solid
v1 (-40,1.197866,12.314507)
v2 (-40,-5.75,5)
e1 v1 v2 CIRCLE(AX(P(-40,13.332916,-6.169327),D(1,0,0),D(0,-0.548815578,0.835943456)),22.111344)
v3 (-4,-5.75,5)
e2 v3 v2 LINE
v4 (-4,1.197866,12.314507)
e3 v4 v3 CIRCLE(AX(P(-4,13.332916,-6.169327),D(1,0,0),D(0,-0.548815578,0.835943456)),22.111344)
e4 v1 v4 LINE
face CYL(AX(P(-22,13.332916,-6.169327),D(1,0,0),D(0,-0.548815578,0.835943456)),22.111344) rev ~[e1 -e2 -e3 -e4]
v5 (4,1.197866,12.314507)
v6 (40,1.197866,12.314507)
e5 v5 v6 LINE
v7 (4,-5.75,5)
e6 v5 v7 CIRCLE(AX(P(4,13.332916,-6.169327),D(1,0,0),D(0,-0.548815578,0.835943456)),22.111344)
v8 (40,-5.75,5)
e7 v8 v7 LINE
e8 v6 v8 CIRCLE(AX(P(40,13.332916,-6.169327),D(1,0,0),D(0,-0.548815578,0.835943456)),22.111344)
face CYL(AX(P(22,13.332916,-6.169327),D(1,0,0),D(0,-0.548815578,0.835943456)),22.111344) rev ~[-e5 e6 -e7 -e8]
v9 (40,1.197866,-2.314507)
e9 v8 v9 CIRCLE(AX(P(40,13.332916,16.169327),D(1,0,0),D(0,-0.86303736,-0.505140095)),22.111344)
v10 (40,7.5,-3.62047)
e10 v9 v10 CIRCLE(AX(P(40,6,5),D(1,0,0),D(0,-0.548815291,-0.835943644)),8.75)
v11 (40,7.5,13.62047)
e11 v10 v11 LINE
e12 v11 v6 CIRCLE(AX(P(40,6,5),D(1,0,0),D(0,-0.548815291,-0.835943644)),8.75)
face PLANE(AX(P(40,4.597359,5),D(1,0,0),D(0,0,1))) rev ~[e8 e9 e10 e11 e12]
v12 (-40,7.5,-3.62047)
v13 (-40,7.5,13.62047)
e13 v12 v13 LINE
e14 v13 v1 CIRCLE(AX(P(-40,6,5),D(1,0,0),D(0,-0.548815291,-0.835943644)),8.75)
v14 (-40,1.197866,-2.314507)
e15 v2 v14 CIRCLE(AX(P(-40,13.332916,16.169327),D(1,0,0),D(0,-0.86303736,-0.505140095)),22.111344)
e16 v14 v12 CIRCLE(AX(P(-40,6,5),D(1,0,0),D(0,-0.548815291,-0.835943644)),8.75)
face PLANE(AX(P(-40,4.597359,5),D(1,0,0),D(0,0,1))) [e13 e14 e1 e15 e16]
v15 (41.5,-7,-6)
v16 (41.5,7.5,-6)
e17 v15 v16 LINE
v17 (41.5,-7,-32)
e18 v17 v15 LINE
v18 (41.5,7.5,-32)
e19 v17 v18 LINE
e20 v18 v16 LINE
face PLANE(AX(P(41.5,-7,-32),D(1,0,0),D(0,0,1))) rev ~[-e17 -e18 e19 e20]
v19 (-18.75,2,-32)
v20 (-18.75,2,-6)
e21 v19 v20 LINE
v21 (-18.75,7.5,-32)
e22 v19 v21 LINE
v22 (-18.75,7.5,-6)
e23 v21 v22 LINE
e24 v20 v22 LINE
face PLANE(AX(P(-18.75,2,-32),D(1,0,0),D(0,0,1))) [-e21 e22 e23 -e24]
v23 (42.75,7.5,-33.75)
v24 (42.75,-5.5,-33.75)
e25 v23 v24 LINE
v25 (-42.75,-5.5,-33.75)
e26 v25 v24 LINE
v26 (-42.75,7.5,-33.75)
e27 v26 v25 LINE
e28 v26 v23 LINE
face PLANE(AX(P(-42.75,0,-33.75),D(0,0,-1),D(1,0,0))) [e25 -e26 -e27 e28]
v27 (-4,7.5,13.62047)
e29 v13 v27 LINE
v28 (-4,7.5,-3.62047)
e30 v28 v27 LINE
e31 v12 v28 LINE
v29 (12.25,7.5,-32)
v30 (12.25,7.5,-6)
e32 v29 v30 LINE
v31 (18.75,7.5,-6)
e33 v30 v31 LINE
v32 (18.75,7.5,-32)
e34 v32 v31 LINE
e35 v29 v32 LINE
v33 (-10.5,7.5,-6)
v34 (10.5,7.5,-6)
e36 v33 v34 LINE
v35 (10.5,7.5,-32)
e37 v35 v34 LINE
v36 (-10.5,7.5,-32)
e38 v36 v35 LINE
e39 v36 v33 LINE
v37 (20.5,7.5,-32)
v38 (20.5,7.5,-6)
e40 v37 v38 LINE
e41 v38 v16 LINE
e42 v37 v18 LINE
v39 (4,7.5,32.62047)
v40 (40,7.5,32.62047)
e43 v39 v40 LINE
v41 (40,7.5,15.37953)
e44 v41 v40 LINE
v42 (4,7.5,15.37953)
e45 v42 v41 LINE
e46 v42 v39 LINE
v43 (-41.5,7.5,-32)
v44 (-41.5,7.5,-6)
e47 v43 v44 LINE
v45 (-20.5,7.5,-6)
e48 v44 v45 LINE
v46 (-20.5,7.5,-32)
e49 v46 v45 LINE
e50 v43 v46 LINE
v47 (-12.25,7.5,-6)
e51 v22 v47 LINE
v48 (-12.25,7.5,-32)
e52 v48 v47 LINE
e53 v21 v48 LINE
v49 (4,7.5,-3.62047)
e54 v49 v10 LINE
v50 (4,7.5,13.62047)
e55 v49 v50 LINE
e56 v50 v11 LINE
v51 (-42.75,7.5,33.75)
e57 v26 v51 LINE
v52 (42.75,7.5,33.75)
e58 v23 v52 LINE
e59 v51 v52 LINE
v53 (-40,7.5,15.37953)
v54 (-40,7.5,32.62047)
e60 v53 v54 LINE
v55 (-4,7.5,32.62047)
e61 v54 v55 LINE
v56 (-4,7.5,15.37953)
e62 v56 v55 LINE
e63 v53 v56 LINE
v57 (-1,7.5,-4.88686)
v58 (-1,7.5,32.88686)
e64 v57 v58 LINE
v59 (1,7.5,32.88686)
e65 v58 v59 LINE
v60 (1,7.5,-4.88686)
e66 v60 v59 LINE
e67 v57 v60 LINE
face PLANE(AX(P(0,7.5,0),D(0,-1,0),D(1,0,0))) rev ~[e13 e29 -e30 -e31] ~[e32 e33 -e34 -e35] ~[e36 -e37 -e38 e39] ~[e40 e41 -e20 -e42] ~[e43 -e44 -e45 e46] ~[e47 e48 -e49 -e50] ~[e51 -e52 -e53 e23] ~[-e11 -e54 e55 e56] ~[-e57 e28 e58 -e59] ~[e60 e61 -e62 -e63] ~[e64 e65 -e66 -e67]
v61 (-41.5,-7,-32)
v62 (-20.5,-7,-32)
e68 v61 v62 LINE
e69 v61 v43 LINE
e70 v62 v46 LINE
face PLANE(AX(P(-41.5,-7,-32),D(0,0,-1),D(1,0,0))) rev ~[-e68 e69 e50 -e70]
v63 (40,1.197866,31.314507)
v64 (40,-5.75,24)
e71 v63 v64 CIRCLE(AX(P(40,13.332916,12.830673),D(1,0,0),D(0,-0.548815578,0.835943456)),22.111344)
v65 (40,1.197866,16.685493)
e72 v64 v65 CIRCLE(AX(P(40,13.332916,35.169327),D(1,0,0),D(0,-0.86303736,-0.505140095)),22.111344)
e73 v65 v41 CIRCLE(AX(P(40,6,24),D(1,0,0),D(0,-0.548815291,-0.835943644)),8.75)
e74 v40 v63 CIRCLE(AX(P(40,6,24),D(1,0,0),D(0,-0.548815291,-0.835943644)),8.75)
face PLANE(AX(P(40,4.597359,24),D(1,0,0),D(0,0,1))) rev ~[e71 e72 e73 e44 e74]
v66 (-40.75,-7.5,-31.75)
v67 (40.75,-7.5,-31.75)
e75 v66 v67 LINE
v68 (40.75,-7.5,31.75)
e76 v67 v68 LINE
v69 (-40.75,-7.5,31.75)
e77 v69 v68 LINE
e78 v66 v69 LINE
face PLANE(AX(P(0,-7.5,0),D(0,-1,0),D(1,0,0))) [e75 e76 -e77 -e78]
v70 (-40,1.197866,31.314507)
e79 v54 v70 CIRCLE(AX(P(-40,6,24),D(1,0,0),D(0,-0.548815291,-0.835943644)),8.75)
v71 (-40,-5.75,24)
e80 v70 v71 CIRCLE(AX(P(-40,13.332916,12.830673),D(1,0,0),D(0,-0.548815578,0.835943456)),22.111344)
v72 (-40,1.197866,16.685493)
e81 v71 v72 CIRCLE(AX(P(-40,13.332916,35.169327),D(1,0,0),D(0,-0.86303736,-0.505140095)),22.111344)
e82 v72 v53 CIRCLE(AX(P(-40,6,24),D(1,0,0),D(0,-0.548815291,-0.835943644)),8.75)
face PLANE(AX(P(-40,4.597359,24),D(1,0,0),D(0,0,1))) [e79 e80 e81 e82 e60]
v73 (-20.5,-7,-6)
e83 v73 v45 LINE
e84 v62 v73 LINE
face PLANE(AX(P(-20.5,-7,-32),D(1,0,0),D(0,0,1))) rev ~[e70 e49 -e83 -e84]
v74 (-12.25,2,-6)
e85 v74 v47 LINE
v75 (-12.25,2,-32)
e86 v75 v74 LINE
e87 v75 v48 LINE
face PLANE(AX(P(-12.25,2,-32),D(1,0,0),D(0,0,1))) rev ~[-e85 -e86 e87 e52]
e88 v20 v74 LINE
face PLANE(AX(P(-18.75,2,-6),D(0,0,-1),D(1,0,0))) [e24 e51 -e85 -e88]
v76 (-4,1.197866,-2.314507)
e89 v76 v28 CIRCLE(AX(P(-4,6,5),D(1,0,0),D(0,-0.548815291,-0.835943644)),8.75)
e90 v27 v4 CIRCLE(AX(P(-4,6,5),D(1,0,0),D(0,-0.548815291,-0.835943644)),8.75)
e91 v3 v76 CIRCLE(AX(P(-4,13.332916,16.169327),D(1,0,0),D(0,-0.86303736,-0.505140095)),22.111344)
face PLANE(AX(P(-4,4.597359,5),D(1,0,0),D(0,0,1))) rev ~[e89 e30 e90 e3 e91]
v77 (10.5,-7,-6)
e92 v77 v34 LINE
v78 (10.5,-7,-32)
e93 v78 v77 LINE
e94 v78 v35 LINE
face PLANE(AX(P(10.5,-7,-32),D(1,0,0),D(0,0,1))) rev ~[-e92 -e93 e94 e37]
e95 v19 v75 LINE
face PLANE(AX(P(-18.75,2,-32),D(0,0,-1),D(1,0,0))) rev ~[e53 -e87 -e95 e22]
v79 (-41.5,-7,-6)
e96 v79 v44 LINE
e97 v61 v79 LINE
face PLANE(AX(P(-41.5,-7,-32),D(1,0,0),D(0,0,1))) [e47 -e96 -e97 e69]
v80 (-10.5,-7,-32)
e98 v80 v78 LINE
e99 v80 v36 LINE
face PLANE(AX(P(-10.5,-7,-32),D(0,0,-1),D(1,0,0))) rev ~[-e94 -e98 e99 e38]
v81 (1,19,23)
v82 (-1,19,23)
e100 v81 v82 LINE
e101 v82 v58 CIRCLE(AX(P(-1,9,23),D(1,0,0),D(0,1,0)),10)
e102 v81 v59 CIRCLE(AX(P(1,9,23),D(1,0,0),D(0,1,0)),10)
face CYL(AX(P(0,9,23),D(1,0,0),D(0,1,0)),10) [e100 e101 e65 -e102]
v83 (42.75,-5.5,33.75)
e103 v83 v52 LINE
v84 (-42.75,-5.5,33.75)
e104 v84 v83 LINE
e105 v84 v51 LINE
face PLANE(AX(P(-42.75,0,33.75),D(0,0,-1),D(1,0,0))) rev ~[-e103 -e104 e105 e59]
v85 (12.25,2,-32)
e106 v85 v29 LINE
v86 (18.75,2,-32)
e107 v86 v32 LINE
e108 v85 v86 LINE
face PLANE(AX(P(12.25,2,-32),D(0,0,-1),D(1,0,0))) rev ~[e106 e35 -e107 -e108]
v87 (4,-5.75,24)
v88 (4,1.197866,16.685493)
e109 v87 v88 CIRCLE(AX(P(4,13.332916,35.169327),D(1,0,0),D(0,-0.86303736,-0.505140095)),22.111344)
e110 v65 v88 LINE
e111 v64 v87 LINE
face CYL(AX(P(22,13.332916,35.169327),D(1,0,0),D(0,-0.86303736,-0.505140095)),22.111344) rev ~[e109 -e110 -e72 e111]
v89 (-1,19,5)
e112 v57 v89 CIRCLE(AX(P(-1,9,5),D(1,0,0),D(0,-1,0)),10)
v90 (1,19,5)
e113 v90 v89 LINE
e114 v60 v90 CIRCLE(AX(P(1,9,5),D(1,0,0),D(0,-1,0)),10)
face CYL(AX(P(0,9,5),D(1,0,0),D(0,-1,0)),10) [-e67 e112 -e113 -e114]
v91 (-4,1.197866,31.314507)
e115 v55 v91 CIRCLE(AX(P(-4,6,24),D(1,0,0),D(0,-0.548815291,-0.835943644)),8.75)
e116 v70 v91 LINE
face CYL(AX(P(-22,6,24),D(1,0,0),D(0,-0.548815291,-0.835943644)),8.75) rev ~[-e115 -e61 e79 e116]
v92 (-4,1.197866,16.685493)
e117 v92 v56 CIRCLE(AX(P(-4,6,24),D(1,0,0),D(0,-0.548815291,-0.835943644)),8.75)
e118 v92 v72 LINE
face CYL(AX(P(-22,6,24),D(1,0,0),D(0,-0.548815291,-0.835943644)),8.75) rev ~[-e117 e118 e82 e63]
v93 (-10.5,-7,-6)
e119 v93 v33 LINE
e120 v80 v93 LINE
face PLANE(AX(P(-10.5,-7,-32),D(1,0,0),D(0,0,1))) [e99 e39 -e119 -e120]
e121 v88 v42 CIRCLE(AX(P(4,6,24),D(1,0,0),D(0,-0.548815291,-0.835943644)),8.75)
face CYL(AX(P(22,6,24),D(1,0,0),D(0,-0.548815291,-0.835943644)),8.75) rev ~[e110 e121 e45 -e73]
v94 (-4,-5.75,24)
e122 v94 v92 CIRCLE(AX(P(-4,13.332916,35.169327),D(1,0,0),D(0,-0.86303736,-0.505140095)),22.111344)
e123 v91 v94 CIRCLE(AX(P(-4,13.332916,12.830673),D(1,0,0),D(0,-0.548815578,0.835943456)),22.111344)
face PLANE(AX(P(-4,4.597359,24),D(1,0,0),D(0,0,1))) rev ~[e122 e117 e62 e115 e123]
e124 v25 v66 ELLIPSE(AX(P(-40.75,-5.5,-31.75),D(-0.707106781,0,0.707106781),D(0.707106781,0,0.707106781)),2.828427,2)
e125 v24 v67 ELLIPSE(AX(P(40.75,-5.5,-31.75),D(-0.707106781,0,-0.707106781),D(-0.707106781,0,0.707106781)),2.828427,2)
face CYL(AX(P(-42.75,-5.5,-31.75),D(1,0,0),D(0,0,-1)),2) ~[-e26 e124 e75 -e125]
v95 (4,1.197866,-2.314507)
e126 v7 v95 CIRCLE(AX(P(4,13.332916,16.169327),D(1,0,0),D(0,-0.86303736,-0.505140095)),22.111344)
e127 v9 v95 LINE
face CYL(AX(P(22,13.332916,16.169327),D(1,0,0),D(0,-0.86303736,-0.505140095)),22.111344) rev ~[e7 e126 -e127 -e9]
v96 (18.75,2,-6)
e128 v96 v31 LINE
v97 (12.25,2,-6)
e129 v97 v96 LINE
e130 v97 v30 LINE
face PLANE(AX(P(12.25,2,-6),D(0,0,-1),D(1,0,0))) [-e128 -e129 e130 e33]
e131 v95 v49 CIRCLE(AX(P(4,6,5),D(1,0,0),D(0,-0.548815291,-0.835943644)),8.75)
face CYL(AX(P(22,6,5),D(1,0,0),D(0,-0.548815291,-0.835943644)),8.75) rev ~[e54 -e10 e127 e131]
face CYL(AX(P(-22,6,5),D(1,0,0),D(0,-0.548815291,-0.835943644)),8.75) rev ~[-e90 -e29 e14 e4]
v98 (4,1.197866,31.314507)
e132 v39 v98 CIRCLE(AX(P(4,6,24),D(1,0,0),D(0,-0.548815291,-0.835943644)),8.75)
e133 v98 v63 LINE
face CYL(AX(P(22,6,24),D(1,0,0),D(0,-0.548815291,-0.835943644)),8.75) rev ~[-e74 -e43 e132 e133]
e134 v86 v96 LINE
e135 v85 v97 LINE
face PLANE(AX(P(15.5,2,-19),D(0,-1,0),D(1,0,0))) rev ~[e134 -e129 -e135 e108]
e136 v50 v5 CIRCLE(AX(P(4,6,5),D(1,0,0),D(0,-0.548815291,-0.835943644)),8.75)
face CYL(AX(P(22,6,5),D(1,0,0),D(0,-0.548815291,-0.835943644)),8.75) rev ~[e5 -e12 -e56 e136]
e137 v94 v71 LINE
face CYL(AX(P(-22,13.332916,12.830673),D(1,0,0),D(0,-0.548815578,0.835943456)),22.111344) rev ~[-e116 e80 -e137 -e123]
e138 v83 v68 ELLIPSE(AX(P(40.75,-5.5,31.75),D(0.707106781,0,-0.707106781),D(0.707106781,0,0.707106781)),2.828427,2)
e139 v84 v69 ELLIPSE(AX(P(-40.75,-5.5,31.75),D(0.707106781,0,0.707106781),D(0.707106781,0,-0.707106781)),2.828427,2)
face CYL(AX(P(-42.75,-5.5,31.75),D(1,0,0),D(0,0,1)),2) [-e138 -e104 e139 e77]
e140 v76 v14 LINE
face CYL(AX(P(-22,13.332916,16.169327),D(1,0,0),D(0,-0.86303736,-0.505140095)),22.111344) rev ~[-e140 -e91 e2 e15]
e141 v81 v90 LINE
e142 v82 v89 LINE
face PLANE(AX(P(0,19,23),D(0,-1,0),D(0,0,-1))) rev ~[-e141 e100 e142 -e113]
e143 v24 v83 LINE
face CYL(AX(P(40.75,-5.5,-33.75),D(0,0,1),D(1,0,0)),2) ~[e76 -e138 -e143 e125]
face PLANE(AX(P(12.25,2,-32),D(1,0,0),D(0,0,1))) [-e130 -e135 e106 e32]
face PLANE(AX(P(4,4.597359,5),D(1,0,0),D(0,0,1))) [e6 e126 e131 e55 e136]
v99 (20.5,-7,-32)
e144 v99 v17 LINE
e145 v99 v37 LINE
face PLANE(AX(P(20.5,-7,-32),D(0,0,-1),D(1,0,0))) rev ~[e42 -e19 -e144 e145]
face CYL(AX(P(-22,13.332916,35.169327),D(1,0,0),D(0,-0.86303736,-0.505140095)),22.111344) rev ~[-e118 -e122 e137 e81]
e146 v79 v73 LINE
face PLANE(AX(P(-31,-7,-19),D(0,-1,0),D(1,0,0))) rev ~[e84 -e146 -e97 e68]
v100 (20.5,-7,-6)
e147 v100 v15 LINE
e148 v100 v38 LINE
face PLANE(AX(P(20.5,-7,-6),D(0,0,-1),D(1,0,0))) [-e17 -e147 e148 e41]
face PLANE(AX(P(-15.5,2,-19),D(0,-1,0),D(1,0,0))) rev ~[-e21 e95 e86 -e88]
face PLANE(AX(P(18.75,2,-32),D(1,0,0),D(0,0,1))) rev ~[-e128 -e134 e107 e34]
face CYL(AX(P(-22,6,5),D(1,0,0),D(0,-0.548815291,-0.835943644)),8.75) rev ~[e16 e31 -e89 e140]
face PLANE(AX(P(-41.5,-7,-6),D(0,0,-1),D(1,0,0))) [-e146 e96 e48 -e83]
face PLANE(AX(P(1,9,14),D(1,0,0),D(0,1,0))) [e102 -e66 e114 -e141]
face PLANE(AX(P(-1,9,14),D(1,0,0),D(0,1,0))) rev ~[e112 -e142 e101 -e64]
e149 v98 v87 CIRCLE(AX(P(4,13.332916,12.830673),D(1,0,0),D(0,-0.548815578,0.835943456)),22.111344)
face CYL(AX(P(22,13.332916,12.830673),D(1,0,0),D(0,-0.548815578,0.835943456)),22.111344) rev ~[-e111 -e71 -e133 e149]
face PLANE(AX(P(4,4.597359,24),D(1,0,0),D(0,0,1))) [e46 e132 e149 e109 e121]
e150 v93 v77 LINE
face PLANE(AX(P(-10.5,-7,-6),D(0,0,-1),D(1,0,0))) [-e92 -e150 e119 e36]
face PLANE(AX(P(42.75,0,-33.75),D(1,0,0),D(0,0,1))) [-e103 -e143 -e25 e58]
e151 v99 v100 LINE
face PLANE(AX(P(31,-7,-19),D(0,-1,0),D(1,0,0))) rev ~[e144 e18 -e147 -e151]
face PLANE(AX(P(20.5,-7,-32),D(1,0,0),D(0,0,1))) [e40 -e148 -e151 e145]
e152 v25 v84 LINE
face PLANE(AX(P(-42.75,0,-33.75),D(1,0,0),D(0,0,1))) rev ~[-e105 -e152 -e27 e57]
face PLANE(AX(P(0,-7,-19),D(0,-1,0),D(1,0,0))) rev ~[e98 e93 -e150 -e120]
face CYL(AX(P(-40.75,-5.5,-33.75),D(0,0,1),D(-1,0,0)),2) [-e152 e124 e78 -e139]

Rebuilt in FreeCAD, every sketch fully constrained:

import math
import FreeCAD as App
import Part
import Sketcher


def edges_at(feature, points):
    """Names of the edges that pass closest to the given points."""
    edges = feature.Shape.Edges
    near = lambda p: min(range(len(edges)), key=lambda i: edges[i].distToShape(Part.Vertex(*p))[0])
    return sorted({f"Edge{near(p) + 1}" for p in points})


def add_polygon(sketch, points):
    """Adds a closed chain of lines whose ends are joined by coincident constraints."""
    first, n = sketch.GeometryCount, len(points)
    for a, b in zip(points, points[1:] + points[:1]):
        sketch.addGeometry(Part.LineSegment(App.Vector(*a, 0), App.Vector(*b, 0)), False)
    for i in range(n):
        sketch.addConstraint(Sketcher.Constraint("Coincident", first + i, 2, first + (i + 1) % n, 1))

doc = App.newDocument("Part")
body = doc.addObject("PartDesign::Body", "Body")

sketch1 = body.newObject("Sketcher::SketchObject", "Sketch")
sketch1.AttachmentSupport = (doc.getObject("XZ_Plane"), [""])
sketch1.MapMode = "FlatFace"
add_polygon(sketch1, [(-43, 34), (-43, -34), (43, -34), (43, 34)])
sketch1.addConstraint(Sketcher.Constraint("Vertical", 0))
sketch1.addConstraint(Sketcher.Constraint("Horizontal", 1))
sketch1.addConstraint(Sketcher.Constraint("Vertical", 2))
sketch1.addConstraint(Sketcher.Constraint("Horizontal", 3))
sketch1.addConstraint(Sketcher.Constraint("Symmetric", 0, 2, 2, 2, -1, 1))
sketch1.addConstraint(Sketcher.Constraint("DistanceX", 1, 1, 1, 2, 85.5))
sketch1.addConstraint(Sketcher.Constraint("DistanceY", 0, 2, 0, 1, 67.5))
pad1 = body.newObject("PartDesign::Pad", "Pad")
pad1.Profile = sketch1
pad1.Length = 15
pad1.Midplane = True

sketch2 = body.newObject("Sketcher::SketchObject", "Sketch001")
sketch2.AttachmentSupport = (doc.getObject("YZ_Plane"), [""])
sketch2.MapMode = "FlatFace"
sketch2.AttachmentOffset = App.Placement(App.Vector(0, 0, -22), App.Rotation())
sketch2.addGeometry(Part.ArcOfCircle(Part.Circle(App.Vector(6, 24, 0), App.Vector(0, 0, 1), 9), math.radians(-123), math.radians(123)), False)
sketch2.addGeometry(Part.ArcOfCircle(Part.Circle(App.Vector(13, 13, 0), App.Vector(0, 0, 1), 22), math.radians(123), math.radians(150)), False)
sketch2.addGeometry(Part.ArcOfCircle(Part.Circle(App.Vector(13, 35, 0), App.Vector(0, 0, 1), 22), math.radians(-150), math.radians(-123)), False)
sketch2.addConstraint(Sketcher.Constraint("Tangent", 0, 2, 1, 1))
sketch2.addConstraint(Sketcher.Constraint("Coincident", 1, 2, 2, 1))
sketch2.addConstraint(Sketcher.Constraint("Tangent", 2, 2, 0, 1))
sketch2.addConstraint(Sketcher.Constraint("Equal", 1, 2))
sketch2.addConstraint(Sketcher.Constraint("Horizontal", 0, 3, 1, 2))
sketch2.addConstraint(Sketcher.Constraint("Radius", 0, 8.75))
sketch2.addConstraint(Sketcher.Constraint("DistanceX", -1, 1, 0, 3, 6.0))
sketch2.addConstraint(Sketcher.Constraint("DistanceY", -1, 1, 0, 3, 24.0))
sketch2.addConstraint(Sketcher.Constraint("DistanceX", 1, 2, -1, 1, 5.75))
sketch2.addConstraint(Sketcher.Constraint("Radius", 1, 22.111344))
pocket1 = body.newObject("PartDesign::Pocket", "Pocket")
pocket1.Profile = sketch2
pocket1.Length = 36
pocket1.Midplane = True

sketch3 = body.newObject("Sketcher::SketchObject", "Sketch002")
sketch3.AttachmentSupport = (doc.getObject("YZ_Plane"), [""])
sketch3.MapMode = "FlatFace"
sketch3.AttachmentOffset = App.Placement(App.Vector(0, 0, -22), App.Rotation())
sketch3.addGeometry(Part.ArcOfCircle(Part.Circle(App.Vector(6, 5, 0), App.Vector(0, 0, 1), 9), math.radians(-123), math.radians(123)), False)
sketch3.addGeometry(Part.ArcOfCircle(Part.Circle(App.Vector(13, -6, 0), App.Vector(0, 0, 1), 22), math.radians(123), math.radians(150)), False)
sketch3.addGeometry(Part.ArcOfCircle(Part.Circle(App.Vector(13, 16, 0), App.Vector(0, 0, 1), 22), math.radians(-150), math.radians(-123)), False)
sketch3.addConstraint(Sketcher.Constraint("Tangent", 0, 2, 1, 1))
sketch3.addConstraint(Sketcher.Constraint("Coincident", 1, 2, 2, 1))
sketch3.addConstraint(Sketcher.Constraint("Tangent", 2, 2, 0, 1))
sketch3.addConstraint(Sketcher.Constraint("Equal", 1, 2))
sketch3.addConstraint(Sketcher.Constraint("Horizontal", 0, 3, 1, 2))
sketch3.addConstraint(Sketcher.Constraint("Radius", 0, 8.75))
sketch3.addConstraint(Sketcher.Constraint("DistanceX", -1, 1, 0, 3, 6.0))
sketch3.addConstraint(Sketcher.Constraint("DistanceY", -1, 1, 0, 3, 5.0))
sketch3.addConstraint(Sketcher.Constraint("DistanceX", 1, 2, -1, 1, 5.75))
sketch3.addConstraint(Sketcher.Constraint("Radius", 1, 22.111344))
pocket2 = body.newObject("PartDesign::Pocket", "Pocket001")
pocket2.Profile = sketch3
pocket2.Length = 36
pocket2.Midplane = True
doc.recompute()

linearpattern = body.newObject("PartDesign::LinearPattern", "LinearPattern")
linearpattern.Originals = [pocket1, pocket2]
linearpattern.Direction = (doc.getObject("X_Axis"), [""])
linearpattern.Mode = "offset"
linearpattern.Offset = 44
linearpattern.Occurrences = 2
body.Tip = linearpattern

sketch4 = body.newObject("Sketcher::SketchObject", "Sketch003")
sketch4.AttachmentSupport = (doc.getObject("XZ_Plane"), [""])
sketch4.MapMode = "FlatFace"
sketch4.AttachmentOffset = App.Placement(App.Vector(0, 0, 7), App.Rotation())
add_polygon(sketch4, [(-42, -6), (-42, -32), (-20, -32), (-20, -6)])
sketch4.addConstraint(Sketcher.Constraint("Vertical", 0))
sketch4.addConstraint(Sketcher.Constraint("Horizontal", 1))
sketch4.addConstraint(Sketcher.Constraint("Vertical", 2))
sketch4.addConstraint(Sketcher.Constraint("Horizontal", 3))
sketch4.addConstraint(Sketcher.Constraint("DistanceX", 1, 1, 1, 2, 21.0))
sketch4.addConstraint(Sketcher.Constraint("DistanceY", 0, 2, 0, 1, 26.0))
sketch4.addConstraint(Sketcher.Constraint("DistanceY", 0, 2, -1, 1, 32.0))
sketch4.addConstraint(Sketcher.Constraint("DistanceX", 0, 2, -1, 1, 41.5))
pocket3 = body.newObject("PartDesign::Pocket", "Pocket002")
pocket3.Profile = sketch4
pocket3.Length = 20
doc.recompute()

linearpattern2 = body.newObject("PartDesign::LinearPattern", "LinearPattern001")
linearpattern2.Originals = [pocket3]
linearpattern2.Direction = (doc.getObject("X_Axis"), [""])
linearpattern2.Mode = "offset"
linearpattern2.Offset = 31
linearpattern2.Occurrences = 3
body.Tip = linearpattern2

sketch5 = body.newObject("Sketcher::SketchObject", "Sketch004")
sketch5.AttachmentSupport = (doc.getObject("XZ_Plane"), [""])
sketch5.MapMode = "FlatFace"
sketch5.AttachmentOffset = App.Placement(App.Vector(0, 0, -2), App.Rotation())
add_polygon(sketch5, [(12, -6), (12, -32), (19, -32), (19, -6)])
sketch5.addConstraint(Sketcher.Constraint("Vertical", 0))
sketch5.addConstraint(Sketcher.Constraint("Horizontal", 1))
sketch5.addConstraint(Sketcher.Constraint("Vertical", 2))
sketch5.addConstraint(Sketcher.Constraint("Horizontal", 3))
sketch5.addConstraint(Sketcher.Constraint("DistanceY", 0, 2, 0, 1, 26.0))
sketch5.addConstraint(Sketcher.Constraint("DistanceX", 1, 1, 1, 2, 6.5))
sketch5.addConstraint(Sketcher.Constraint("DistanceY", 0, 2, -1, 1, 32.0))
sketch5.addConstraint(Sketcher.Constraint("DistanceX", -1, 1, 0, 2, 12.25))
pocket4 = body.newObject("PartDesign::Pocket", "Pocket003")
pocket4.Profile = sketch5
pocket4.Length = 6
doc.recompute()

linearpattern3 = body.newObject("PartDesign::LinearPattern", "LinearPattern002")
linearpattern3.Originals = [pocket4]
linearpattern3.Direction = (doc.getObject("X_Axis"), [""])
linearpattern3.Mode = "offset"
linearpattern3.Offset = 31
linearpattern3.Occurrences = 2
linearpattern3.Reversed = True
body.Tip = linearpattern3

sketch6 = body.newObject("Sketcher::SketchObject", "Sketch005")
sketch6.AttachmentSupport = (doc.getObject("YZ_Plane"), [""])
sketch6.MapMode = "FlatFace"
sketch6.addGeometry(Part.ArcOfCircle(Part.Circle(App.Vector(9, 23, 0), App.Vector(0, 0, 1), 10), math.radians(0), math.radians(180)), False)
sketch6.addGeometry(Part.LineSegment(App.Vector(-1, 23, 0), App.Vector(-1, 5, 0)), False)
sketch6.addGeometry(Part.ArcOfCircle(Part.Circle(App.Vector(9, 5, 0), App.Vector(0, 0, 1), 10), math.radians(180), math.radians(360)), False)
sketch6.addGeometry(Part.LineSegment(App.Vector(19, 5, 0), App.Vector(19, 23, 0)), False)
sketch6.addConstraint(Sketcher.Constraint("Tangent", 0, 2, 1, 1))
sketch6.addConstraint(Sketcher.Constraint("Tangent", 1, 2, 2, 1))
sketch6.addConstraint(Sketcher.Constraint("Tangent", 2, 2, 3, 1))
sketch6.addConstraint(Sketcher.Constraint("Tangent", 3, 2, 0, 1))
sketch6.addConstraint(Sketcher.Constraint("Vertical", 1))
sketch6.addConstraint(Sketcher.Constraint("Vertical", 3))
sketch6.addConstraint(Sketcher.Constraint("Radius", 0, 10.0))
sketch6.addConstraint(Sketcher.Constraint("DistanceY", 1, 2, 1, 1, 18.0))
sketch6.addConstraint(Sketcher.Constraint("DistanceX", -1, 1, 0, 3, 9.0))
sketch6.addConstraint(Sketcher.Constraint("DistanceY", -1, 1, 0, 3, 23.0))
pad2 = body.newObject("PartDesign::Pad", "Pad001")
pad2.Profile = sketch6
pad2.Length = 2
pad2.Midplane = True
doc.recompute()

fillet = body.newObject("PartDesign::Fillet", "Fillet")
fillet.Base = (pad2, edges_at(pad2, [
    (0, -7.5, 33.75),
    (42.75, -7.5, 0),
    (0, -7.5, -33.75),
    (-42.75, -7.5, 0),
]))
fillet.Radius = 2

doc.recompute()
